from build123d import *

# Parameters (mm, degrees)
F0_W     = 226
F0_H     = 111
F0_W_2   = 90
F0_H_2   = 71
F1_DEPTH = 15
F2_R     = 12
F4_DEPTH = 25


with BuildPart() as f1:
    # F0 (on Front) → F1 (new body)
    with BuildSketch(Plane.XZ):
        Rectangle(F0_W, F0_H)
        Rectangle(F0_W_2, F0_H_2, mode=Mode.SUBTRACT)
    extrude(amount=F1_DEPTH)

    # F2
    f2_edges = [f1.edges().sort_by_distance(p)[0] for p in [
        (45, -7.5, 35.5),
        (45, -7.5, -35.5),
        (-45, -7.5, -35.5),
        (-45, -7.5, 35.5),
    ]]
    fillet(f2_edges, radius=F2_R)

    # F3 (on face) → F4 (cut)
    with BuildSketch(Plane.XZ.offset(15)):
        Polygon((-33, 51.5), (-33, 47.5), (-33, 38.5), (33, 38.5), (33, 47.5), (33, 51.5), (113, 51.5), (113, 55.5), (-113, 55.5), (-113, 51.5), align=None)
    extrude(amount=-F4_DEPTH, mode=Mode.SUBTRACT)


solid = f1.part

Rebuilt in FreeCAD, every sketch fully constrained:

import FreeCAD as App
import Part
import Sketcher


def edges_at(feature, points):
    """Names of the edges that pass closest to the given points."""
    edges = feature.Shape.Edges
    near = lambda p: min(range(len(edges)), key=lambda i: edges[i].distToShape(Part.Vertex(*p))[0])
    return sorted({f"Edge{near(p) + 1}" for p in points})


def add_polygon(sketch, points):
    """Adds a closed chain of lines whose ends are joined by coincident constraints."""
    first, n = sketch.GeometryCount, len(points)
    for a, b in zip(points, points[1:] + points[:1]):
        sketch.addGeometry(Part.LineSegment(App.Vector(*a, 0), App.Vector(*b, 0)), False)
    for i in range(n):
        sketch.addConstraint(Sketcher.Constraint("Coincident", first + i, 2, first + (i + 1) % n, 1))

doc = App.newDocument("Part")
body = doc.addObject("PartDesign::Body", "Body")

# Sketch on XZ plane
sketch1 = body.newObject("Sketcher::SketchObject", "Sketch")
sketch1.AttachmentSupport = (doc.getObject("XZ_Plane"), [""])
sketch1.MapMode = "FlatFace"
add_polygon(sketch1, [(-113, 55.5), (-113, -55.5), (113, -55.5), (113, 55.5)])  # lines 0-3
add_polygon(sketch1, [(45, -35.5), (-45, -35.5), (-45, 35.5), (45, 35.5)])  # lines 4-7
sketch1.addConstraint(Sketcher.Constraint("Vertical", 0))
sketch1.addConstraint(Sketcher.Constraint("Horizontal", 1))
sketch1.addConstraint(Sketcher.Constraint("Vertical", 2))
sketch1.addConstraint(Sketcher.Constraint("Horizontal", 3))
sketch1.addConstraint(Sketcher.Constraint("Horizontal", 4))
sketch1.addConstraint(Sketcher.Constraint("Vertical", 5))
sketch1.addConstraint(Sketcher.Constraint("Horizontal", 6))
sketch1.addConstraint(Sketcher.Constraint("Vertical", 7))
sketch1.addConstraint(Sketcher.Constraint("Symmetric", 0, 2, 2, 2, -1, 1))
sketch1.addConstraint(Sketcher.Constraint("Symmetric", 4, 2, 6, 2, -1, 1))
sketch1.addConstraint(Sketcher.Constraint("DistanceX", 1, 1, 1, 2, 226.0))
sketch1.addConstraint(Sketcher.Constraint("DistanceX", 4, 2, 4, 1, 90.0))
sketch1.addConstraint(Sketcher.Constraint("DistanceY", 0, 2, 0, 1, 111.0))
sketch1.addConstraint(Sketcher.Constraint("DistanceY", 5, 1, 5, 2, 71.0))
pad1 = body.newObject("PartDesign::Pad", "Pad")
pad1.Profile = sketch1
pad1.Length = 15
doc.recompute()

fillet = body.newObject("PartDesign::Fillet", "Fillet")
fillet.Base = (pad1, edges_at(pad1, [
    (45, -7.5, 35.5),
    (45, -7.5, -35.5),
    (-45, -7.5, -35.5),
    (-45, -7.5, 35.5),
]))
fillet.Radius = 12

# Sketch on XZ plane
sketch2 = body.newObject("Sketcher::SketchObject", "Sketch001")
sketch2.AttachmentSupport = (doc.getObject("XZ_Plane"), [""])
sketch2.MapMode = "FlatFace"
sketch2.AttachmentOffset = App.Placement(App.Vector(0, 0, 15), App.Rotation())
add_polygon(sketch2, [(-33, 51.5), (-33, 38.5), (33, 38.5), (33, 51.5), (113, 51.5), (113, 55.5), (-113, 55.5), (-113, 51.5)])  # lines 0-7
sketch2.addConstraint(Sketcher.Constraint("Vertical", 0))
sketch2.addConstraint(Sketcher.Constraint("Horizontal", 1))
sketch2.addConstraint(Sketcher.Constraint("Vertical", 2))
sketch2.addConstraint(Sketcher.Constraint("Horizontal", 3))
sketch2.addConstraint(Sketcher.Constraint("Vertical", 4))
sketch2.addConstraint(Sketcher.Constraint("Horizontal", 5))
sketch2.addConstraint(Sketcher.Constraint("Vertical", 6))
sketch2.addConstraint(Sketcher.Constraint("Horizontal", 7))
sketch2.addConstraint(Sketcher.Constraint("Symmetric", 3, 2, 6, 2, -2))
sketch2.addConstraint(Sketcher.Constraint("Equal", 3, 7))
sketch2.addConstraint(Sketcher.Constraint("DistanceX", 1, 1, 1, 2, 66.0))
sketch2.addConstraint(Sketcher.Constraint("DistanceX", 3, 1, 3, 2, 80.0))
sketch2.addConstraint(Sketcher.Constraint("DistanceY", 0, 2, 0, 1, 13.0))
sketch2.addConstraint(Sketcher.Constraint("DistanceY", 4, 1, 4, 2, 4.0))
sketch2.addConstraint(Sketcher.Constraint("DistanceY", -1, 1, 0, 2, 38.5))
pocket1 = body.newObject("PartDesign::Pocket", "Pocket")
pocket1.Profile = sketch2
pocket1.Length = 25

doc.recompute()
